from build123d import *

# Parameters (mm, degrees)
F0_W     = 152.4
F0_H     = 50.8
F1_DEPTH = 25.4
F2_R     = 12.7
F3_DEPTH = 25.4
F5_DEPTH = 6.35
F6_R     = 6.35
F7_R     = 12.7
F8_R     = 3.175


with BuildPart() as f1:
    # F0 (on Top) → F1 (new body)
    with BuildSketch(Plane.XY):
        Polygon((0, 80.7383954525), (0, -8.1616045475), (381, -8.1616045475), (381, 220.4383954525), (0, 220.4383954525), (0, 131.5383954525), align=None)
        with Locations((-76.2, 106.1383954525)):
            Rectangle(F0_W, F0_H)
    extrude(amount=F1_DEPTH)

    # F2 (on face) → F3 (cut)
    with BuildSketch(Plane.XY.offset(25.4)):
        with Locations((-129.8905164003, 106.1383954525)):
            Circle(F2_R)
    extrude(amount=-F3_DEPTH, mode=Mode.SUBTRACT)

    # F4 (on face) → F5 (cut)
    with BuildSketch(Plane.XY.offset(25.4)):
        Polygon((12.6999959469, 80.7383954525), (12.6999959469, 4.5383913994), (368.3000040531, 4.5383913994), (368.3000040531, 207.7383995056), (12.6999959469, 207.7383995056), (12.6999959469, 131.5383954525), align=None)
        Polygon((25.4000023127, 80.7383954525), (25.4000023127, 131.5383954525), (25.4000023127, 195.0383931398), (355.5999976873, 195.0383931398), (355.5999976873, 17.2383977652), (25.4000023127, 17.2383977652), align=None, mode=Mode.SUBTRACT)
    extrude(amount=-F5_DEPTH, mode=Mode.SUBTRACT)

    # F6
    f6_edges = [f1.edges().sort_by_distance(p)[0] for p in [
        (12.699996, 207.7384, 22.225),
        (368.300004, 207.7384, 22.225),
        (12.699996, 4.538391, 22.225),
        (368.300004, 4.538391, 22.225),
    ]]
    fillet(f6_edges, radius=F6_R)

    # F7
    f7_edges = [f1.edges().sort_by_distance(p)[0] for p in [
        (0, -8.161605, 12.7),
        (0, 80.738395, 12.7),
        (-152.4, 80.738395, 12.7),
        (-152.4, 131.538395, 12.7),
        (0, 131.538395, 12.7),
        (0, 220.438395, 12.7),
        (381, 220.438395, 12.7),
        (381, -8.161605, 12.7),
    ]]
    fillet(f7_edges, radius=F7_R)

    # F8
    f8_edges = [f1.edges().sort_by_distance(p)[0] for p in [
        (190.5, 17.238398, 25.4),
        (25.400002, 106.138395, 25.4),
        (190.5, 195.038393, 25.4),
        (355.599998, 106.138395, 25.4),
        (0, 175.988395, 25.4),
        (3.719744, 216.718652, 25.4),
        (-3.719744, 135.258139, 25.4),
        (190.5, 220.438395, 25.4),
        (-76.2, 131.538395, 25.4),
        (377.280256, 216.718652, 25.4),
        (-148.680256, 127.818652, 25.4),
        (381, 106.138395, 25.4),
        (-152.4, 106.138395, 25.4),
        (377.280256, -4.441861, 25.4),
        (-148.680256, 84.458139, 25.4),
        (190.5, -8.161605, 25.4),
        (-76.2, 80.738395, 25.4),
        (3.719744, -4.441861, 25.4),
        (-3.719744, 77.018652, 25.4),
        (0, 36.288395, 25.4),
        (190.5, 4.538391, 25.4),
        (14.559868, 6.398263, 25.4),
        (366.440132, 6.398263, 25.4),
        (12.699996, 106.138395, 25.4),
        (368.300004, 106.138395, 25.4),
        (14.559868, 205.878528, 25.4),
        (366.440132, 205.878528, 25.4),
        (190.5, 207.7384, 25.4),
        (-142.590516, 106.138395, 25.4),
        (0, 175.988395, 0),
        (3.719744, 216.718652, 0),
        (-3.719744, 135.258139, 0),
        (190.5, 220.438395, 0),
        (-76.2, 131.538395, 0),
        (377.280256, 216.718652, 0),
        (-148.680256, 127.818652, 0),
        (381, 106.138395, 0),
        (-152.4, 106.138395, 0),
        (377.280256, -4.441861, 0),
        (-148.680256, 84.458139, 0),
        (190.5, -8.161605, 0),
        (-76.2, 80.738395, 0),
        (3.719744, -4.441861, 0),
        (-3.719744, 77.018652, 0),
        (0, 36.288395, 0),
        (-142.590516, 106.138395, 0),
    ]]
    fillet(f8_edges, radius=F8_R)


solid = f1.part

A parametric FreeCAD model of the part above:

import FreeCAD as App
import Part
import Sketcher
from FreeCAD import Vector
Q = App.Units.Quantity


def edges_at(feature, points):
    """Names of the edges that pass closest to the given points."""
    edges = feature.Shape.Edges
    near = lambda p: min(range(len(edges)), key=lambda i: edges[i].distToShape(Part.Vertex(*p))[0])
    return sorted({f"Edge{near(p) + 1}" for p in points})


def add_polygon(sketch, points):
    """Adds a closed chain of lines whose ends are joined by coincident constraints."""
    first, n = sketch.GeometryCount, len(points)
    for a, b in zip(points, points[1:] + points[:1]):
        sketch.addGeometry(Part.LineSegment(App.Vector(*a, 0), App.Vector(*b, 0)), False)
    for i in range(n):
        sketch.addConstraint(Sketcher.Constraint("Coincident", first + i, 2, first + (i + 1) % n, 1))

doc = App.newDocument("Part")
body = doc.addObject("PartDesign::Body", "Body")

# Sketch on XY plane
sketch1 = doc.addObject("Sketcher::SketchObject", "Sketch")
body.addObject(sketch1)
sketch1.AttachmentSupport = (doc.XY_Plane, [""])
sketch1.MapMode = "FlatFace"
add_polygon(sketch1, [(0, -8), (381, -8), (381, 220), (0, 220), (0, 132), (-152, 132), (-152, 81), (0, 81)])  # lines 0-7
sketch1.addConstraint([
    Sketcher.Constraint("Horizontal", 0),
    Sketcher.Constraint("Vertical", 1),
    Sketcher.Constraint("Horizontal", 2),
    Sketcher.Constraint("Vertical", 3),
    Sketcher.Constraint("Horizontal", 4),
    Sketcher.Constraint("Vertical", 5),
    Sketcher.Constraint("Horizontal", 6),
    Sketcher.Constraint("Vertical", 7),
    Sketcher.Constraint("PointOnObject", 2, 2, -2),
    Sketcher.Constraint("PointOnObject", 6, 2, -2),
    Sketcher.Constraint("Equal", 3, 7),
    Sketcher.Constraint("DistanceX", 0, 1, 0, 2, Q("15 in")),
    Sketcher.Constraint("DistanceX", 4, 2, 4, 1, Q("6 in")),
    Sketcher.Constraint("DistanceY", 1, 1, 1, 2, Q("9 in")),
    Sketcher.Constraint("DistanceY", 5, 2, 5, 1, Q("2 in")),
    Sketcher.Constraint("DistanceY", 0, 2, -1, 1, 8.161605),
])
pad1 = doc.addObject("PartDesign::Pad", "Pad")
body.addObject(pad1)
pad1.Profile = sketch1
pad1.Length = Q("1 in")

# Sketch on XY plane
sketch2 = doc.addObject("Sketcher::SketchObject", "Sketch001")
body.addObject(sketch2)
sketch2.AttachmentSupport = (doc.XY_Plane, [""])
sketch2.MapMode = "FlatFace"
sketch2.AttachmentOffset = App.Placement(Vector(0, 0, 1 * 25.4), App.Rotation())
sketch2.addGeometry(Part.Circle(Vector(-130, 106, 0), Vector(0, 0, 1), 13), False)
sketch2.addConstraint([
    Sketcher.Constraint("Diameter", 0, Q("1 in")),
    Sketcher.Constraint("DistanceX", 0, 3, -1, 1, Q("5.1137999 in")),
    Sketcher.Constraint("DistanceY", -1, 1, 0, 3, 106.138395),
])
pocket1 = doc.addObject("PartDesign::Pocket", "Pocket")
body.addObject(pocket1)
pocket1.Profile = sketch2
pocket1.Length = Q("1 in")

# Sketch on XY plane
sketch3 = doc.addObject("Sketcher::SketchObject", "Sketch002")
body.addObject(sketch3)
sketch3.AttachmentSupport = (doc.XY_Plane, [""])
sketch3.MapMode = "FlatFace"
sketch3.AttachmentOffset = App.Placement(Vector(0, 0, 1 * 25.4), App.Rotation())
add_polygon(sketch3, [(13, 5), (368, 5), (368, 208), (13, 208)])  # lines 0-3
add_polygon(sketch3, [(25, 17), (25, 195), (356, 195), (356, 17)])  # lines 4-7
sketch3.addConstraint([
    Sketcher.Constraint("Horizontal", 0),
    Sketcher.Constraint("Vertical", 1),
    Sketcher.Constraint("Horizontal", 2),
    Sketcher.Constraint("Vertical", 3),
    Sketcher.Constraint("Vertical", 4),
    Sketcher.Constraint("Horizontal", 5),
    Sketcher.Constraint("Vertical", 6),
    Sketcher.Constraint("Horizontal", 7),
    Sketcher.Constraint("DistanceX", 5, 1, 5, 2, Q("12.9999998 in")),
    Sketcher.Constraint("DistanceY", 4, 1, 4, 2, Q("6.9999998 in")),
    Sketcher.Constraint("DistanceX", -1, 1, 4, 2, Q("1.0000001 in")),
    Sketcher.Constraint("DistanceX", -1, 1, 0, 2, Q("14.5000002 in")),
    Sketcher.Constraint("DistanceX", -1, 1, 2, 2, Q("0.4999998 in")),
    Sketcher.Constraint("DistanceY", 3, 2, 4, 2, Q("7.5000001 in")),
    Sketcher.Constraint("DistanceY", 6, 2, 1, 2, Q("7.5000001 in")),
    Sketcher.Constraint("DistanceY", -1, 1, 1, 2, 207.7384),
])
pocket2 = doc.addObject("PartDesign::Pocket", "Pocket001")
body.addObject(pocket2)
pocket2.Profile = sketch3
pocket2.Length = Q("0.25 in")
doc.recompute()

fillet = doc.addObject("PartDesign::Fillet", "Fillet")
body.addObject(fillet)
fillet.Base = (pocket2, edges_at(pocket2, [
    (12.7, 207.738, 22.225),
    (368.3, 207.738, 22.225),
    (12.7, 4.538, 22.225),
    (368.3, 4.538, 22.225),
]))
fillet.Radius = Q("0.25 in")
doc.recompute()

fillet2 = doc.addObject("PartDesign::Fillet", "Fillet001")
body.addObject(fillet2)
fillet2.Base = (fillet, edges_at(fillet, [
    (0, -8.162, 12.7),
    (0, 80.738, 12.7),
    (-152.4, 80.738, 12.7),
    (-152.4, 131.538, 12.7),
    (0, 131.538, 12.7),
    (0, 220.438, 12.7),
    (381, 220.438, 12.7),
    (381, -8.162, 12.7),
]))
fillet2.Radius = Q("0.5 in")
doc.recompute()

fillet3 = doc.addObject("PartDesign::Fillet", "Fillet002")
body.addObject(fillet3)
fillet3.Base = (fillet2, edges_at(fillet2, [
    (190.5, 17.238, 25.4),
    (25.4, 106.138, 25.4),
    (190.5, 195.038, 25.4),
    (355.6, 106.138, 25.4),
    (0, 175.988, 25.4),
    (3.72, 216.719, 25.4),
    (-3.72, 135.258, 25.4),
    (190.5, 220.438, 25.4),
    (-76.2, 131.538, 25.4),
    (377.28, 216.719, 25.4),
    (-148.68, 127.819, 25.4),
    (381, 106.138, 25.4),
    (-152.4, 106.138, 25.4),
    (377.28, -4.442, 25.4),
    (-148.68, 84.458, 25.4),
    (190.5, -8.162, 25.4),
    (-76.2, 80.738, 25.4),
    (3.72, -4.442, 25.4),
    (-3.72, 77.019, 25.4),
    (0, 36.288, 25.4),
    (190.5, 4.538, 25.4),
    (14.56, 6.398, 25.4),
    (366.44, 6.398, 25.4),
    (12.7, 106.138, 25.4),
    (368.3, 106.138, 25.4),
    (14.56, 205.879, 25.4),
    (366.44, 205.879, 25.4),
    (190.5, 207.738, 25.4),
    (-142.591, 106.138, 25.4),
    (0, 175.988, 0),
    (3.72, 216.719, 0),
    (-3.72, 135.258, 0),
    (190.5, 220.438, 0),
    (-76.2, 131.538, 0),
    (377.28, 216.719, 0),
    (-148.68, 127.819, 0),
    (381, 106.138, 0),
    (-152.4, 106.138, 0),
    (377.28, -4.442, 0),
    (-148.68, 84.458, 0),
    (190.5, -8.162, 0),
    (-76.2, 80.738, 0),
    (3.72, -4.442, 0),
    (-3.72, 77.019, 0),
    (0, 36.288, 0),
    (-142.591, 106.138, 0),
]))
fillet3.Radius = Q("0.125 in")

doc.recompute()
